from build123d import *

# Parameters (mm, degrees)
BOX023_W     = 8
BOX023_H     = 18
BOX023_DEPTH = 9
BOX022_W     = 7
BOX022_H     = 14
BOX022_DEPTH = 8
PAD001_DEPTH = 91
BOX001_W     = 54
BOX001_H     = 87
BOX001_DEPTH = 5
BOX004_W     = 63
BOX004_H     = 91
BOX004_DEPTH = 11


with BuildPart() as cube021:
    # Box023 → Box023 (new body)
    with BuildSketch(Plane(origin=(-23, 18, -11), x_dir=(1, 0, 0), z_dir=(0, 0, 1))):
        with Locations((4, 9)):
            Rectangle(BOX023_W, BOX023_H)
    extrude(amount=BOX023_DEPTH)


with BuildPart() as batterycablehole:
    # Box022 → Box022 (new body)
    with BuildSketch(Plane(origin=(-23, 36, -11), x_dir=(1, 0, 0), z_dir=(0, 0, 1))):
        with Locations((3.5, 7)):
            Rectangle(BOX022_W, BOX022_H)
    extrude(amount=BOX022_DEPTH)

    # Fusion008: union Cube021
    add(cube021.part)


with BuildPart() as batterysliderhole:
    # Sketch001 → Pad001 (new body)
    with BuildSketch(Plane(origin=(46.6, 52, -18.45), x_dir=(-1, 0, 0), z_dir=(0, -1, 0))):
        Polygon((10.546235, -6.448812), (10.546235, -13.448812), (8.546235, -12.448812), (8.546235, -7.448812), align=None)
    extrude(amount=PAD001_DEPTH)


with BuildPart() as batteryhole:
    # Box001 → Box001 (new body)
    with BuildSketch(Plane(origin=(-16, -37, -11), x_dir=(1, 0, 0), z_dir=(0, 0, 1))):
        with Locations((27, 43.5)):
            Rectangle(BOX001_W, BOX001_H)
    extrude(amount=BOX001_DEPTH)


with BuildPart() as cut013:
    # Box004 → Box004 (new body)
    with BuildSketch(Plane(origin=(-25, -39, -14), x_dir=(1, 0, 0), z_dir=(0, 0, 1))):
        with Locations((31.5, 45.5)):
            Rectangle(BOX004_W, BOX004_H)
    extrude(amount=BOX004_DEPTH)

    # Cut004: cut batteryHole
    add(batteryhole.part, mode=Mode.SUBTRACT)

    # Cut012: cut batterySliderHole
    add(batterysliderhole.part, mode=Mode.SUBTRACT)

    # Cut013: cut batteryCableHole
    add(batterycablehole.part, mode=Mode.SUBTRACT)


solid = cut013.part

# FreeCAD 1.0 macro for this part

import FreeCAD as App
import Part
import Sketcher

V = App.Vector
Q = App.Units.Quantity

doc = App.newDocument("Part")
body = doc.addObject("PartDesign::Body", "Body")

sketch1 = doc.addObject("Sketcher::SketchObject", "Sketch")
body.addObject(sketch1)
sketch1.AttachmentSupport = (doc.XY_Plane, [""])
sketch1.MapMode = "FlatFace"
sketch1.AttachmentOffset = App.Placement(V(0, 0, -11), App.Rotation())
sketch1.addGeometry([
    Part.LineSegment(V(-23, 36, 0), V(-23, 18, 0)),
    Part.LineSegment(V(-23, 18, 0), V(-15, 18, 0)),
    Part.LineSegment(V(-15, 18, 0), V(-15, 36, 0)),
    Part.LineSegment(V(-15, 36, 0), V(-23, 36, 0)),
], False)
sketch1.addConstraint([
    Sketcher.Constraint("Coincident", 0, 2, 1, 1),
    Sketcher.Constraint("Coincident", 1, 2, 2, 1),
    Sketcher.Constraint("Coincident", 2, 2, 3, 1),
    Sketcher.Constraint("Coincident", 3, 2, 0, 1),
    Sketcher.Constraint("Vertical", 0),
    Sketcher.Constraint("Horizontal", 1),
    Sketcher.Constraint("Vertical", 2),
    Sketcher.Constraint("Horizontal", 3),
    Sketcher.Constraint("DistanceX", 1, 1, 1, 2, Q("8 mm")),
    Sketcher.Constraint("DistanceY", 0, 2, 0, 1, Q("18 mm")),
    Sketcher.Constraint("DistanceX", 0, 2, -1, 1, Q("23 mm")),
    Sketcher.Constraint("DistanceY", -1, 1, 0, 2, Q("18 mm")),
])
pad1 = doc.addObject("PartDesign::Pad", "Pad")
body.addObject(pad1)
pad1.Profile = sketch1
pad1.Length = 9
body2 = doc.addObject("PartDesign::Body", "Body001")

sketch2 = doc.addObject("Sketcher::SketchObject", "Sketch001")
body2.addObject(sketch2)
sketch2.AttachmentSupport = (doc.getObject("XY_Plane001"), [""])
sketch2.MapMode = "FlatFace"
sketch2.AttachmentOffset = App.Placement(V(0, 0, -11), App.Rotation())
sketch2.addGeometry([
    Part.LineSegment(V(-23, 50, 0), V(-23, 36, 0)),
    Part.LineSegment(V(-23, 36, 0), V(-16, 36, 0)),
    Part.LineSegment(V(-16, 36, 0), V(-16, 50, 0)),
    Part.LineSegment(V(-16, 50, 0), V(-23, 50, 0)),
], False)
sketch2.addConstraint([
    Sketcher.Constraint("Coincident", 0, 2, 1, 1),
    Sketcher.Constraint("Coincident", 1, 2, 2, 1),
    Sketcher.Constraint("Coincident", 2, 2, 3, 1),
    Sketcher.Constraint("Coincident", 3, 2, 0, 1),
    Sketcher.Constraint("Vertical", 0),
    Sketcher.Constraint("Horizontal", 1),
    Sketcher.Constraint("Vertical", 2),
    Sketcher.Constraint("Horizontal", 3),
    Sketcher.Constraint("DistanceX", 1, 1, 1, 2, Q("7 mm")),
    Sketcher.Constraint("DistanceY", 0, 2, 0, 1, Q("14 mm")),
    Sketcher.Constraint("DistanceX", 0, 2, -1, 1, Q("23 mm")),
    Sketcher.Constraint("DistanceY", -1, 1, 0, 2, Q("36 mm")),
])
pad2 = doc.addObject("PartDesign::Pad", "Pad001")
body2.addObject(pad2)
pad2.Profile = sketch2
pad2.Length = 8
doc.recompute()

boolean = doc.addObject("PartDesign::Boolean", "Boolean")
body2.addObject(boolean)
boolean.Type = "Fuse"
boolean.addObjects([body])
body3 = doc.addObject("PartDesign::Body", "Body002")

sketch3 = doc.addObject("Sketcher::SketchObject", "Sketch002")
body3.addObject(sketch3)
sketch3.AttachmentSupport = (doc.getObject("XZ_Plane002"), [""])
sketch3.MapMode = "FlatFace"
sketch3.AttachmentOffset = App.Placement(V(0, 0, -52), App.Rotation())
sketch3.addGeometry([
    Part.LineSegment(V(36.1, -5, 0), V(36.1, -12, 0)),
    Part.LineSegment(V(36.1, -12, 0), V(38.1, -11, 0)),
    Part.LineSegment(V(38.1, -11, 0), V(38.1, -6, 0)),
    Part.LineSegment(V(38.1, -6, 0), V(36.1, -5, 0)),
], False)
sketch3.addConstraint([
    Sketcher.Constraint("Coincident", 0, 2, 1, 1),
    Sketcher.Constraint("Coincident", 1, 2, 2, 1),
    Sketcher.Constraint("Coincident", 2, 2, 3, 1),
    Sketcher.Constraint("Coincident", 3, 2, 0, 1),
    Sketcher.Constraint("Vertical", 0),
    Sketcher.Constraint("Vertical", 2),
    Sketcher.Constraint("Equal", 1, 3),
    Sketcher.Constraint("DistanceY", 0, 2, 0, 1, Q("7 mm")),
    Sketcher.Constraint("DistanceY", 2, 1, 2, 2, Q("5 mm")),
    Sketcher.Constraint("DistanceX", 0, 2, 1, 2, Q("2 mm")),
    Sketcher.Constraint("DistanceY", 0, 2, -1, 1, Q("12.001188 mm")),
    Sketcher.Constraint("DistanceX", -1, 1, 0, 2, Q("36.053765 mm")),
])
pad3 = doc.addObject("PartDesign::Pad", "Pad002")
body3.addObject(pad3)
pad3.Profile = sketch3
pad3.Length = 91
body4 = doc.addObject("PartDesign::Body", "Body003")

sketch4 = doc.addObject("Sketcher::SketchObject", "Sketch003")
body4.addObject(sketch4)
sketch4.AttachmentSupport = (doc.getObject("XY_Plane003"), [""])
sketch4.MapMode = "FlatFace"
sketch4.AttachmentOffset = App.Placement(V(0, 0, -11), App.Rotation())
sketch4.addGeometry([
    Part.LineSegment(V(-16, 50, 0), V(-16, -37, 0)),
    Part.LineSegment(V(-16, -37, 0), V(38, -37, 0)),
    Part.LineSegment(V(38, -37, 0), V(38, 50, 0)),
    Part.LineSegment(V(38, 50, 0), V(-16, 50, 0)),
], False)
sketch4.addConstraint([
    Sketcher.Constraint("Coincident", 0, 2, 1, 1),
    Sketcher.Constraint("Coincident", 1, 2, 2, 1),
    Sketcher.Constraint("Coincident", 2, 2, 3, 1),
    Sketcher.Constraint("Coincident", 3, 2, 0, 1),
    Sketcher.Constraint("Vertical", 0),
    Sketcher.Constraint("Horizontal", 1),
    Sketcher.Constraint("Vertical", 2),
    Sketcher.Constraint("Horizontal", 3),
    Sketcher.Constraint("DistanceX", 1, 1, 1, 2, Q("54 mm")),
    Sketcher.Constraint("DistanceY", 0, 2, 0, 1, Q("87 mm")),
    Sketcher.Constraint("DistanceX", 0, 2, -1, 1, Q("16 mm")),
    Sketcher.Constraint("DistanceY", 0, 2, -1, 1, Q("37 mm")),
])
pad4 = doc.addObject("PartDesign::Pad", "Pad003")
body4.addObject(pad4)
pad4.Profile = sketch4
pad4.Length = 5
body5 = doc.addObject("PartDesign::Body", "Body004")

sketch5 = doc.addObject("Sketcher::SketchObject", "Sketch004")
body5.addObject(sketch5)
sketch5.AttachmentSupport = (doc.getObject("XY_Plane004"), [""])
sketch5.MapMode = "FlatFace"
sketch5.AttachmentOffset = App.Placement(V(0, 0, -14), App.Rotation())
sketch5.addGeometry([
    Part.LineSegment(V(-25, 52, 0), V(-25, -39, 0)),
    Part.LineSegment(V(-25, -39, 0), V(38, -39, 0)),
    Part.LineSegment(V(38, -39, 0), V(38, 52, 0)),
    Part.LineSegment(V(38, 52, 0), V(-25, 52, 0)),
], False)
sketch5.addConstraint([
    Sketcher.Constraint("Coincident", 0, 2, 1, 1),
    Sketcher.Constraint("Coincident", 1, 2, 2, 1),
    Sketcher.Constraint("Coincident", 2, 2, 3, 1),
    Sketcher.Constraint("Coincident", 3, 2, 0, 1),
    Sketcher.Constraint("Vertical", 0),
    Sketcher.Constraint("Horizontal", 1),
    Sketcher.Constraint("Vertical", 2),
    Sketcher.Constraint("Horizontal", 3),
    Sketcher.Constraint("DistanceX", 1, 1, 1, 2, Q("63 mm")),
    Sketcher.Constraint("DistanceY", 0, 2, 0, 1, Q("91 mm")),
    Sketcher.Constraint("DistanceX", 0, 2, -1, 1, Q("25 mm")),
    Sketcher.Constraint("DistanceY", 0, 2, -1, 1, Q("39 mm")),
])
pad5 = doc.addObject("PartDesign::Pad", "Pad004")
body5.addObject(pad5)
pad5.Profile = sketch5
pad5.Length = 11
doc.recompute()

boolean2 = doc.addObject("PartDesign::Boolean", "Boolean001")
body5.addObject(boolean2)
boolean2.Type = "Cut"
boolean2.addObjects([body4])
doc.recompute()

boolean3 = doc.addObject("PartDesign::Boolean", "Boolean002")
body5.addObject(boolean3)
boolean3.Type = "Cut"
boolean3.addObjects([body3])
doc.recompute()

boolean4 = doc.addObject("PartDesign::Boolean", "Boolean003")
body5.addObject(boolean4)
boolean4.Type = "Cut"
boolean4.addObjects([body2])

doc.recompute()
